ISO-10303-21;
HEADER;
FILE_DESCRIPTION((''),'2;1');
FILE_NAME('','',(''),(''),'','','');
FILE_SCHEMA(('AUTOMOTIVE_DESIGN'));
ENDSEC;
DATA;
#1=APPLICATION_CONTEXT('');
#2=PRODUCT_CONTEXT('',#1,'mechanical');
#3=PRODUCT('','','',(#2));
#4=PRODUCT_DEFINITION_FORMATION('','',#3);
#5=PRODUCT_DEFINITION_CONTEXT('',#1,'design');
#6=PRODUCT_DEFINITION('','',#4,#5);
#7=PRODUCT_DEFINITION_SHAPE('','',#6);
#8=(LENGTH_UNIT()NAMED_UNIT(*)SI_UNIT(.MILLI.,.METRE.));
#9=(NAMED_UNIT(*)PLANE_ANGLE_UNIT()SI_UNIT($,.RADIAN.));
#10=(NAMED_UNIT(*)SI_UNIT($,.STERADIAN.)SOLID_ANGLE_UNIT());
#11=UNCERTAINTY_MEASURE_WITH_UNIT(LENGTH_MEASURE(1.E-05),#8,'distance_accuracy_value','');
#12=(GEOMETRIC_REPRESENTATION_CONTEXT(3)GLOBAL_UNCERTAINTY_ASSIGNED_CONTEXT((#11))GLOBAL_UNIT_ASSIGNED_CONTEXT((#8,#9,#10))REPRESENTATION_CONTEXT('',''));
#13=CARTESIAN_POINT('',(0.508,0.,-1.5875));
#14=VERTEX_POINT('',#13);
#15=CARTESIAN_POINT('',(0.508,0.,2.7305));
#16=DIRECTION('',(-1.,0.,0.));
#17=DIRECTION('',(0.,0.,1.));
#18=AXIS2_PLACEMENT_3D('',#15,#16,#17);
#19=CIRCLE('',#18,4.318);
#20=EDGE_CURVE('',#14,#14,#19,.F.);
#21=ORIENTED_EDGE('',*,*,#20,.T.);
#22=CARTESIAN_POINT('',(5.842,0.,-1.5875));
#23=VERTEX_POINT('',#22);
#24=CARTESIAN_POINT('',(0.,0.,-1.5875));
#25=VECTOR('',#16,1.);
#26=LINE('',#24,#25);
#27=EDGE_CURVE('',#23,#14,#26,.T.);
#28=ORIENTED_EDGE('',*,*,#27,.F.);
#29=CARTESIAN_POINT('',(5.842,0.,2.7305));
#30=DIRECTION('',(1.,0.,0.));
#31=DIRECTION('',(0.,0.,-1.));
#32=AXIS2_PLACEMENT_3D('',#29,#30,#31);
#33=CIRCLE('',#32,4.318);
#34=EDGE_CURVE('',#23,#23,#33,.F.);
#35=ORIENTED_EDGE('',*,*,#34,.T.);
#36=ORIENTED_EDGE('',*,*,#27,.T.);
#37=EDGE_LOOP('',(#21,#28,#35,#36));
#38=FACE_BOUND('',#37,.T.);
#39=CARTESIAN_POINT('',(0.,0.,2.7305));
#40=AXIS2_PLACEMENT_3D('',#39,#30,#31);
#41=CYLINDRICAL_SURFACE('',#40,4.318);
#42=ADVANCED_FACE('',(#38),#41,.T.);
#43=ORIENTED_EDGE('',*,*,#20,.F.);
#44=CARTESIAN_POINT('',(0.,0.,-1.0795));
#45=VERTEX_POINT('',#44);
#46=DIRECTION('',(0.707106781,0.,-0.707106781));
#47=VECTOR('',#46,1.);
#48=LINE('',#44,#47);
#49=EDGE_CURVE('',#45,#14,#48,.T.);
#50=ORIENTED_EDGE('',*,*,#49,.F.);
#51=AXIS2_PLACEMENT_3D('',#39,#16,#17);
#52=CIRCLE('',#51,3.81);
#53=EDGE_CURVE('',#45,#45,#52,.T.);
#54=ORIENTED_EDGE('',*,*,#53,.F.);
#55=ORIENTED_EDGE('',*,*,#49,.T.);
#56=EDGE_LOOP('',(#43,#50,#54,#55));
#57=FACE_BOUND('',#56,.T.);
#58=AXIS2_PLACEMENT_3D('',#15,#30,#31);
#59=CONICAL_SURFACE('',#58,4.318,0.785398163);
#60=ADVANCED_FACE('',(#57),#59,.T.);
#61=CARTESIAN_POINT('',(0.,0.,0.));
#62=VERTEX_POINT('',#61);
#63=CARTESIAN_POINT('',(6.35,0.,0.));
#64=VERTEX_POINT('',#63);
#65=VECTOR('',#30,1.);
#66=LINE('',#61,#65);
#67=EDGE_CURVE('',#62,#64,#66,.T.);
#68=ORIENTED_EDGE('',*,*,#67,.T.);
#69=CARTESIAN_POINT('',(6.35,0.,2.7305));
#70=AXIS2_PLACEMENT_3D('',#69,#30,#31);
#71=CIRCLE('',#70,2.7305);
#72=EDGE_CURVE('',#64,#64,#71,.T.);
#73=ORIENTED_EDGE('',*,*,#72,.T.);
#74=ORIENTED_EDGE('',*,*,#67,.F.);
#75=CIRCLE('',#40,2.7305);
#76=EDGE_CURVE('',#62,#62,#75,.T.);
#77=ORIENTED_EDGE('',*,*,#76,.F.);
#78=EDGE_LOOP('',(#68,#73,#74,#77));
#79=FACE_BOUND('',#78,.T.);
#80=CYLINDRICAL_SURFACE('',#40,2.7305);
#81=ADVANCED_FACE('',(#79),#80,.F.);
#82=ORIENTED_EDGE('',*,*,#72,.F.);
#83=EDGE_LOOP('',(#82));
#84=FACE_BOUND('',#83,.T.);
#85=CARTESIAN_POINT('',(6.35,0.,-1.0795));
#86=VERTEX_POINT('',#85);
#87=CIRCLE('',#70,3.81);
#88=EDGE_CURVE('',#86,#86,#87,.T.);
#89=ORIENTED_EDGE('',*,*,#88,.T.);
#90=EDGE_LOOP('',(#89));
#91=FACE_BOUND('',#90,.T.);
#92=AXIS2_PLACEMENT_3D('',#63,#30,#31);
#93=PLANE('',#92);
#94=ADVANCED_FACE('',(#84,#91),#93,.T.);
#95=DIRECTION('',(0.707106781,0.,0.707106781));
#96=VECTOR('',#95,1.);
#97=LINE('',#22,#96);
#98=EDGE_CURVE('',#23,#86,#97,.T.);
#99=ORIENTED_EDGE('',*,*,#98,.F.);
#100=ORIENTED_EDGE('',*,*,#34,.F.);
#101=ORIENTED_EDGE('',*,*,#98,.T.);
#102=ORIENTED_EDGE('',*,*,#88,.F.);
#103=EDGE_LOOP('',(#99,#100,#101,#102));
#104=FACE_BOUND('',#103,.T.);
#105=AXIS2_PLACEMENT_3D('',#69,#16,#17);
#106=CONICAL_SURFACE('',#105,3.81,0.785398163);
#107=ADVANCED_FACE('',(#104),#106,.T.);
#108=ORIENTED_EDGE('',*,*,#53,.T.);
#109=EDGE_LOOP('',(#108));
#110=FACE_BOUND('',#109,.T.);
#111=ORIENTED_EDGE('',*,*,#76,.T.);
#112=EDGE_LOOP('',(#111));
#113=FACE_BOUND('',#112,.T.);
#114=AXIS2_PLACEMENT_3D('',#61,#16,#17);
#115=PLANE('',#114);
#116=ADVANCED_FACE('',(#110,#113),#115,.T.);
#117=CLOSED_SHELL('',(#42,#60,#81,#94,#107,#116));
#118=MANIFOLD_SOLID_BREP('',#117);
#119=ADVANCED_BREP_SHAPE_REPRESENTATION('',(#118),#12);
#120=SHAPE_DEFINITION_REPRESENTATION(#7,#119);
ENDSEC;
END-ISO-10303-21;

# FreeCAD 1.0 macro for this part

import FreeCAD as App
import Part
import Sketcher

V = App.Vector
Q = App.Units.Quantity


def edges_at(feature, points):
    """Names of the edges that pass closest to the given points."""
    edges = feature.Shape.Edges
    near = lambda p: min(range(len(edges)), key=lambda i: edges[i].distToShape(Part.Vertex(*p))[0])
    return sorted({f"Edge{near(p) + 1}" for p in points})

doc = App.newDocument("Part")
params = doc.addObject("Spreadsheet::Sheet", "Params")
for row, (alias, value) in enumerate([
    ("sketch1_width", "0.25 in"),
    ("sketch1_height", "0.0625 in"),
    ("sketch2_diameter", "0.215 in"),
    ("chamfer_size", "0.02 in"),
], start=1):
    params.set(f"A{row}", alias)
    params.set(f"B{row}", "=" + value)
    params.setAlias(f"B{row}", alias)

body = doc.addObject("PartDesign::Body", "Body")

# Sketch on XZ plane
sketch1 = body.newObject("Sketcher::SketchObject", "Sketch")
sketch1.AttachmentSupport = (doc.getObject("XZ_Plane"), [""])
sketch1.MapMode = "FlatFace"
sketch1.addGeometry([
    Part.LineSegment(V(0, -1.6, 0), V(0, 0, 0)),
    Part.LineSegment(V(0, 0, 0), V(6.3, 0, 0)),
    Part.LineSegment(V(6.3, 0, 0), V(6.3, -1.6, 0)),
    Part.LineSegment(V(6.3, -1.6, 0), V(0, -1.6, 0)),
], False)
sketch1.addConstraint([
    Sketcher.Constraint("Coincident", 0, 2, 1, 1),
    Sketcher.Constraint("Coincident", 1, 2, 2, 1),
    Sketcher.Constraint("Coincident", 2, 2, 3, 1),
    Sketcher.Constraint("Coincident", 3, 2, 0, 1),
    Sketcher.Constraint("Vertical", 0),
    Sketcher.Constraint("Horizontal", 1),
    Sketcher.Constraint("Vertical", 2),
    Sketcher.Constraint("Horizontal", 3),
    Sketcher.Constraint("Coincident", 0, 2, -1, 1),
    Sketcher.Constraint("DistanceX", 1, 1, 1, 2, Q("0.25 in")),
    Sketcher.Constraint("DistanceY", 0, 1, 0, 2, Q("0.0625 in")),
])
sketch1.setExpression("Constraints[9]", "Params.sketch1_width")
sketch1.setExpression("Constraints[10]", "Params.sketch1_height")

# Sketch on YZ plane
sketch2 = body.newObject("Sketcher::SketchObject", "Sketch001")
sketch2.AttachmentSupport = (doc.getObject("YZ_Plane"), [""])
sketch2.MapMode = "FlatFace"
sketch2.addGeometry(Part.Circle(V(0, 2.7, 0), V(0, 0, 1), 2.7), False)
sketch2.addConstraint([
    Sketcher.Constraint("PointOnObject", 0, 3, -2),
    Sketcher.Constraint("Diameter", 0, Q("0.215 in")),
    Sketcher.Constraint("DistanceY", -1, 1, 0, 3, Q("0.1075 in")),
])
sketch2.setExpression("Constraints[1]", "Params.sketch2_diameter")
doc.recompute()

additivepipe = body.newObject("PartDesign::AdditivePipe", "AdditivePipe")
additivepipe.Profile = sketch1
additivepipe.Spine = (sketch2, ["Edge1"])
doc.recompute()

chamfer = body.newObject("PartDesign::Chamfer", "Chamfer")
chamfer.Base = (additivepipe, edges_at(additivepipe, [(6.35, 0, 7.048), (0, 0, 7.048)]))
chamfer.setExpression("Size", "Params.chamfer_size")

doc.recompute()
